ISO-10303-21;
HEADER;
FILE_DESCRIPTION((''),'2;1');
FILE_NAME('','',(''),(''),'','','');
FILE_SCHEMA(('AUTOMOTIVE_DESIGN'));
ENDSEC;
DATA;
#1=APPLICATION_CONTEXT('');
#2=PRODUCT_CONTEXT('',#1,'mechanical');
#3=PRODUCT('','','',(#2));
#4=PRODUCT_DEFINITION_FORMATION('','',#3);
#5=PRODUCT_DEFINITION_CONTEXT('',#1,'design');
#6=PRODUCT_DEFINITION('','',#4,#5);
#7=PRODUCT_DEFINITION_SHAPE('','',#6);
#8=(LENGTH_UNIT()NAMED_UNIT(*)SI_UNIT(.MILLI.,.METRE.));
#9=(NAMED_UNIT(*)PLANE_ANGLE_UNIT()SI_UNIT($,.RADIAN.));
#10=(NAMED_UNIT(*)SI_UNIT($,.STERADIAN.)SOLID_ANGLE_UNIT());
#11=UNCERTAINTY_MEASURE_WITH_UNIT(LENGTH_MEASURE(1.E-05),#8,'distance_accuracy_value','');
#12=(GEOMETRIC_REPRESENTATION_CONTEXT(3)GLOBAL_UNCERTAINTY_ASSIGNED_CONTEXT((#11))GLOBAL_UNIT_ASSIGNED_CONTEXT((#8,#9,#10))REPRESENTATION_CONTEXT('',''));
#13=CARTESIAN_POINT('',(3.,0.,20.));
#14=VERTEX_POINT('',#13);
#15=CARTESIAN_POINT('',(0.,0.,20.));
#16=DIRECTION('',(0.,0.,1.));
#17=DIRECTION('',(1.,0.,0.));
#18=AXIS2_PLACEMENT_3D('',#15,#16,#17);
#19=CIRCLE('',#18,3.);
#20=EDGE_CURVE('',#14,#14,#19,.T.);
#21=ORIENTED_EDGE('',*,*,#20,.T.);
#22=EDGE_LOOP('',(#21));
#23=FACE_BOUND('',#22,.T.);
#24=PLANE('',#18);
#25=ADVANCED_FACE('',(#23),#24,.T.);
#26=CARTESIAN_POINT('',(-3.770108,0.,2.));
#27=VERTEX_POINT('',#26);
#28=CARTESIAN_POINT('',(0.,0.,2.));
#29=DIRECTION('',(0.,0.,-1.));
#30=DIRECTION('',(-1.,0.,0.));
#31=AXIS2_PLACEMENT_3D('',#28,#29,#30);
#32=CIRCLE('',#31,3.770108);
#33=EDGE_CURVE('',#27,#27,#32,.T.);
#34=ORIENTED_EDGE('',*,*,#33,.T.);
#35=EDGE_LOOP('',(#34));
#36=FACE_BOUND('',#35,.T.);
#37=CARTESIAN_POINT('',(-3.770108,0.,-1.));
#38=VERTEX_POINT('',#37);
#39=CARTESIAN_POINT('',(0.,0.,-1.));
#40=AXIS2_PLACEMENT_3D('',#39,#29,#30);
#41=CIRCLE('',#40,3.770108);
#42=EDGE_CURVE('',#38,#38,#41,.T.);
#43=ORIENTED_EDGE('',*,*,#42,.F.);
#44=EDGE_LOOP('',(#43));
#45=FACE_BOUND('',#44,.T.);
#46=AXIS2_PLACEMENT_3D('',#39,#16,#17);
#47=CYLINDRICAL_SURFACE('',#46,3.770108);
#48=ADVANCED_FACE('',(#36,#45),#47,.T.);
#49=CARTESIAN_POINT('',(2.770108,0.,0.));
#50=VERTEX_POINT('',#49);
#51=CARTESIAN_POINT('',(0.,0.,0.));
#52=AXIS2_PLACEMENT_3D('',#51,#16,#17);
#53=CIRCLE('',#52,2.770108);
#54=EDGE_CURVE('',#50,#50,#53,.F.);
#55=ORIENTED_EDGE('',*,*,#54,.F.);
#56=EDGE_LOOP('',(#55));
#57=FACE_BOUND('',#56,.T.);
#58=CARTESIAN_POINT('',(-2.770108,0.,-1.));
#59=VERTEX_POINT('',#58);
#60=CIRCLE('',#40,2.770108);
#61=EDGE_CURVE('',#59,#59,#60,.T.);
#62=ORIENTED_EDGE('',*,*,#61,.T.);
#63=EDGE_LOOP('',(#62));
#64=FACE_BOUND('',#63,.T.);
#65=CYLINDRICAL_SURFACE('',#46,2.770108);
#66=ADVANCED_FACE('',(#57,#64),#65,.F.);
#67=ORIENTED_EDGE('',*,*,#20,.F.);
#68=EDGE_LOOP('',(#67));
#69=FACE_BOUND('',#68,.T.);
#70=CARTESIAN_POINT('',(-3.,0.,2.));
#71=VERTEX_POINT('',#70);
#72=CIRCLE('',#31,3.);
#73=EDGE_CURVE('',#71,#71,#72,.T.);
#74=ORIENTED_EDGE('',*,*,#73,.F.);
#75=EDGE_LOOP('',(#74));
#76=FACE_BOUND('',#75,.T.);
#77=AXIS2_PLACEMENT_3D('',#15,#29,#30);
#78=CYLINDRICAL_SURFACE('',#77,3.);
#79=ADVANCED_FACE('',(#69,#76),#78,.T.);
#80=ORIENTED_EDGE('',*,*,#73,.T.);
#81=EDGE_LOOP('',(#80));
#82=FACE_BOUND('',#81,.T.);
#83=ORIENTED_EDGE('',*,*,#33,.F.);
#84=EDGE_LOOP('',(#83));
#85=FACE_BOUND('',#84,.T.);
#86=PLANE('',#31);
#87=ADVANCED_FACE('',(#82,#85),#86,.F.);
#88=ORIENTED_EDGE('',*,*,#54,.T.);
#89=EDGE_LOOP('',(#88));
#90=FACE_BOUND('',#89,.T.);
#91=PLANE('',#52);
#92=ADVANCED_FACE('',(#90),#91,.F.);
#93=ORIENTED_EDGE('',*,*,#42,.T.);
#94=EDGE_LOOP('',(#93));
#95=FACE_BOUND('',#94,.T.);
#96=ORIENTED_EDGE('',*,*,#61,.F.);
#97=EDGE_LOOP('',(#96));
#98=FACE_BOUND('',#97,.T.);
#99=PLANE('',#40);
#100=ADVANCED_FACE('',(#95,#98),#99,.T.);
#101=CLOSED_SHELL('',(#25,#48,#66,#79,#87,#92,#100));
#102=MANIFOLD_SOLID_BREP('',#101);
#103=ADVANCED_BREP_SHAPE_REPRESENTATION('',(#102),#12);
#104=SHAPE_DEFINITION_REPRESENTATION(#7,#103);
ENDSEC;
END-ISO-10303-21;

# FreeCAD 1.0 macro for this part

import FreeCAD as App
import Part
import Sketcher

doc = App.newDocument("Part")
body = doc.addObject("PartDesign::Body", "Body")

# Sketch on XY plane
sketch1 = body.newObject("Sketcher::SketchObject", "Sketch")
sketch1.AttachmentSupport = (doc.getObject("XY_Plane"), [""])
sketch1.MapMode = "FlatFace"
sketch1.addGeometry(Part.Circle(App.Vector(0, 0, 0), App.Vector(0, 0, 1), 3), False)
sketch1.addConstraint(Sketcher.Constraint("Coincident", 0, 3, -1, 1))
sketch1.addConstraint(Sketcher.Constraint("Diameter", 0, 6.0))
pad1 = body.newObject("PartDesign::Pad", "Pad")
pad1.Profile = sketch1
pad1.Length = 20

# Sketch on XY plane
sketch2 = body.newObject("Sketcher::SketchObject", "Sketch001")
sketch2.AttachmentSupport = (doc.getObject("XY_Plane"), [""])
sketch2.MapMode = "FlatFace"
sketch2.addGeometry(Part.Circle(App.Vector(0, 0, 0), App.Vector(0, 0, 1), 3.8), False)
sketch2.addGeometry(Part.Circle(App.Vector(0, 0, 0), App.Vector(0, 0, 1), 2.8), False)
sketch2.addConstraint(Sketcher.Constraint("Coincident", 0, 3, -1, 1))
sketch2.addConstraint(Sketcher.Constraint("Coincident", 1, 3, -1, 1))
sketch2.addConstraint(Sketcher.Constraint("Diameter", 0, 7.540216))
sketch2.addConstraint(Sketcher.Constraint("Diameter", 1, 5.540216))
pad2 = body.newObject("PartDesign::Pad", "Pad001")
pad2.Profile = sketch2
pad2.Type = "TwoLengths"
pad2.Length = 1
pad2.Length2 = 2
pad2.Reversed = True

doc.recompute()
